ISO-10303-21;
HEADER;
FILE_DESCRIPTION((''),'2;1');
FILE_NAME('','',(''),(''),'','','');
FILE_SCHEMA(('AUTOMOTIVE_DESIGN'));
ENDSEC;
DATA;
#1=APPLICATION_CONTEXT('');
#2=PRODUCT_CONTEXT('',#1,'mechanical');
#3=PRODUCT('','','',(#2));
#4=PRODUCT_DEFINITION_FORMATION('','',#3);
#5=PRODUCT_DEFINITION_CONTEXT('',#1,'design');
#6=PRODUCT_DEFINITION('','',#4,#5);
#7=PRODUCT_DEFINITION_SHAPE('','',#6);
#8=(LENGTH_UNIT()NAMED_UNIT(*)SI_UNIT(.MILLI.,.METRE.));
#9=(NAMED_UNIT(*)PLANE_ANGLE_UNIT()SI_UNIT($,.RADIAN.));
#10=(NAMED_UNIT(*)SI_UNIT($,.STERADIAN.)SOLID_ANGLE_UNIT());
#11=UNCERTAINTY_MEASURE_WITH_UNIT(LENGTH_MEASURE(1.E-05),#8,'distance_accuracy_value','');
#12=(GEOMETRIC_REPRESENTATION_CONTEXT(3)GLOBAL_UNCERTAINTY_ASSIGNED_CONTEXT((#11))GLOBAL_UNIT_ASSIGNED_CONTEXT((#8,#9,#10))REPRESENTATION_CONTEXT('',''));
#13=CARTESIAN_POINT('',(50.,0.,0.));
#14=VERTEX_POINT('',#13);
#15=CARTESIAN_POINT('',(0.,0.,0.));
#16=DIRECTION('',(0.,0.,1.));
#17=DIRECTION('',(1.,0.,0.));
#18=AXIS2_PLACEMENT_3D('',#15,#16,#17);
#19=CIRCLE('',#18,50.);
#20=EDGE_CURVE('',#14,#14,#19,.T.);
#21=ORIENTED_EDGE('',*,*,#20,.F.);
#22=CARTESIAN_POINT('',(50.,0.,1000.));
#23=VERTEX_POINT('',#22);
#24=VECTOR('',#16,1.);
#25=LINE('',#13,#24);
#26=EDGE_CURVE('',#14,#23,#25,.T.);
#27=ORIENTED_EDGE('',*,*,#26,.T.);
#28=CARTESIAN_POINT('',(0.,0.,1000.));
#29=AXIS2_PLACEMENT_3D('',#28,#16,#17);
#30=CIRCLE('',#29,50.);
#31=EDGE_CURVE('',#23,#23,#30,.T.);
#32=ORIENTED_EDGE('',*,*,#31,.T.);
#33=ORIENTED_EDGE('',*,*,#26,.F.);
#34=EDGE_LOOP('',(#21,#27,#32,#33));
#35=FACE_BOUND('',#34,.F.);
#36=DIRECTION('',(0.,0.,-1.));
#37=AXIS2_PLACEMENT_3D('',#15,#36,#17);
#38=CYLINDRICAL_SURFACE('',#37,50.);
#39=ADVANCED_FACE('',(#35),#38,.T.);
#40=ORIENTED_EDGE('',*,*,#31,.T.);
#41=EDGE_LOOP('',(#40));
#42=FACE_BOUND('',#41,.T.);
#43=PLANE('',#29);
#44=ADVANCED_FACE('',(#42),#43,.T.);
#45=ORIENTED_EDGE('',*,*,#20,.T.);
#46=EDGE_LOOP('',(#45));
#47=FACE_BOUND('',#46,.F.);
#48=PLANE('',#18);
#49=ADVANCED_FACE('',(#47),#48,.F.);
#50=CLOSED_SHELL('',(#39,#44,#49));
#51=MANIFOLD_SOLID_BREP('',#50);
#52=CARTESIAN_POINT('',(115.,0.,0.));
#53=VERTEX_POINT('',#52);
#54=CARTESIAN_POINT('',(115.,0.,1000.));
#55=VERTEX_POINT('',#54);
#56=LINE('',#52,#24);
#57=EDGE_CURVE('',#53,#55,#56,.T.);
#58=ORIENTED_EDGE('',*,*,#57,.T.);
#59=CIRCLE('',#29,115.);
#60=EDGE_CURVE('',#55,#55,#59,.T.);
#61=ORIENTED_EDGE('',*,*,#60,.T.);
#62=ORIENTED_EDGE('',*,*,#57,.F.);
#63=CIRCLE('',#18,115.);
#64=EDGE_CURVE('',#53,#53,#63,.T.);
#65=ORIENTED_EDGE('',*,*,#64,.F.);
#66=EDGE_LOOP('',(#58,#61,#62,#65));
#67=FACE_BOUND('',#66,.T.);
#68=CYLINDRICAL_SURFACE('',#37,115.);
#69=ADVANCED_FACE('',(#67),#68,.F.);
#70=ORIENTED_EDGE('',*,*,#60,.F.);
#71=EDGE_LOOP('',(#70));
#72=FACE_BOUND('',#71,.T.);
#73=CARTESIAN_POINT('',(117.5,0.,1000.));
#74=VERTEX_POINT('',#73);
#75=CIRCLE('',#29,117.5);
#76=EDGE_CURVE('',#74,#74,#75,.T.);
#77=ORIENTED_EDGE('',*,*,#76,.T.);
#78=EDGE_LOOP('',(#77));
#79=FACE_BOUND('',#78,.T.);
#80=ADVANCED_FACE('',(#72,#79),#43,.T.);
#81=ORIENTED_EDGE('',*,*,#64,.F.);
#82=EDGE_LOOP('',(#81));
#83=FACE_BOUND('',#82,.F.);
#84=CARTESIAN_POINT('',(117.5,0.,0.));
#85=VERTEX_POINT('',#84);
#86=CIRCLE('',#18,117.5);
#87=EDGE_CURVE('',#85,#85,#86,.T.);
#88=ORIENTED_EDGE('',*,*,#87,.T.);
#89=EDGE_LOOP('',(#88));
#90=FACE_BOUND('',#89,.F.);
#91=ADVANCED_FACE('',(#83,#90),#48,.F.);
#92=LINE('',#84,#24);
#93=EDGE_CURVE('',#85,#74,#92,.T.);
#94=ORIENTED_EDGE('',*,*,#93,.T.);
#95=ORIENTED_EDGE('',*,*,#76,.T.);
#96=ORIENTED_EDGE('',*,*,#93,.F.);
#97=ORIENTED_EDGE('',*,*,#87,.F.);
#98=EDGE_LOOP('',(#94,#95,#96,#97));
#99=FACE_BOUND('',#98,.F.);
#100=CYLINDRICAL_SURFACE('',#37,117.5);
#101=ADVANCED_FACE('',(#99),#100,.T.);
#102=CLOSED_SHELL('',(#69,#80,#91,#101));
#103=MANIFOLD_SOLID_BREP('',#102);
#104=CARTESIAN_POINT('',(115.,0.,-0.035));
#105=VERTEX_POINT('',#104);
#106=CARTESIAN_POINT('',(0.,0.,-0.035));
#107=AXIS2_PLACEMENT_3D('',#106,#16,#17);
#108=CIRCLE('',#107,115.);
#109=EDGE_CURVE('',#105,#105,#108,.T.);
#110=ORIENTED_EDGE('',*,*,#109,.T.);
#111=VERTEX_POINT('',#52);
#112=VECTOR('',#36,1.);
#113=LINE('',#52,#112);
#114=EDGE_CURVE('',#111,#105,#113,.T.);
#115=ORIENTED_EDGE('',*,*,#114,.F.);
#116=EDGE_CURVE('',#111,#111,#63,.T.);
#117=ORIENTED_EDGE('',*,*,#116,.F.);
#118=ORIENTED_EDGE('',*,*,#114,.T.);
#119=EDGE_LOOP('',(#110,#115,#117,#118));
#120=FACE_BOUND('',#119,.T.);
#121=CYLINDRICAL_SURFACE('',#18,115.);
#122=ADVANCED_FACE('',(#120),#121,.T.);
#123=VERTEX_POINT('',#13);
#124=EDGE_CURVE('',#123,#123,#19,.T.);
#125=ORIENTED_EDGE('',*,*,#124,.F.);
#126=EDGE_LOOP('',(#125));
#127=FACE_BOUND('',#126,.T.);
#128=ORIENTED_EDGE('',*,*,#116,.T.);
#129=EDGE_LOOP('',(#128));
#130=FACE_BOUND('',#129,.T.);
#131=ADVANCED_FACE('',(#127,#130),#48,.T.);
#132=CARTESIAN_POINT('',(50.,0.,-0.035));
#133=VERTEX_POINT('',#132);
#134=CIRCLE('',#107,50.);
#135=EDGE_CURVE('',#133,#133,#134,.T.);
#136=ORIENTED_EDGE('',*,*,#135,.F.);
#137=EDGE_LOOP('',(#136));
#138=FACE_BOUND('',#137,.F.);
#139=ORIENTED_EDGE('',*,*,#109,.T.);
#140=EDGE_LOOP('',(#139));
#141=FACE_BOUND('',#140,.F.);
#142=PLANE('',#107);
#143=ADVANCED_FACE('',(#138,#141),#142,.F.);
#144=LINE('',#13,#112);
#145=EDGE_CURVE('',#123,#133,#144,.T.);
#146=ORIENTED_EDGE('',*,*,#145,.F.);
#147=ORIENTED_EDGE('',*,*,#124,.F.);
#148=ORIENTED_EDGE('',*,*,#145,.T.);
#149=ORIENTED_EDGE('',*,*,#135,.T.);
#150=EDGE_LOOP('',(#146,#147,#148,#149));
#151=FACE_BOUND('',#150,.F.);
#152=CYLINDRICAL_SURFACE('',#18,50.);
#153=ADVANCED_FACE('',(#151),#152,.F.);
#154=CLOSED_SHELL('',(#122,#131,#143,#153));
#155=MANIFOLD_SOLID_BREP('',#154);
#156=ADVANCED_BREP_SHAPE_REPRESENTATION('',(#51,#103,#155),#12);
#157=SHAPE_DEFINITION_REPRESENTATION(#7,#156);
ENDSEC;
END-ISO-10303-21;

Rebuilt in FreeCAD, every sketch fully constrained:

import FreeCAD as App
import Part
import Sketcher
from FreeCAD import Vector

doc = App.newDocument("Part")
params = doc.addObject("Spreadsheet::Sheet", "Params")
for row, (alias, value) in enumerate([
    ("sketch1_diameter", "235 mm"),
    ("sketch1_diameter2", "230 mm"),
    ("pad1_length", "1000 mm"),
    ("sketch2_diameter", "100 mm"),
    ("pad2_length", "1000 mm"),
    ("sketch3_diameter", "230 mm"),
    ("sketch3_diameter2", "100 mm"),
    ("pad3_length", "0.035 mm"),
], start=1):
    params.set(f"A{row}", alias)
    params.set(f"B{row}", "=" + value)
    params.setAlias(f"B{row}", alias)

body = doc.addObject("PartDesign::Body", "Body")

sketch1 = doc.addObject("Sketcher::SketchObject", "Sketch")
body.addObject(sketch1)
sketch1.AttachmentSupport = (doc.XY_Plane, [""])
sketch1.MapMode = "FlatFace"
sketch1.addGeometry([
    Part.Circle(Vector(0, 0, 0), Vector(0, 0, 1), 118),
    Part.Circle(Vector(0, 0, 0), Vector(0, 0, 1), 115),
], False)
sketch1.addConstraint([
    Sketcher.Constraint("Coincident", 0, 3, -1, 1),
    Sketcher.Constraint("Coincident", 1, 3, -1, 1),
    Sketcher.Constraint("Diameter", 0, 235.0),
    Sketcher.Constraint("Diameter", 1, 230.0),
])
sketch1.setExpression("Constraints[2]", "Params.sketch1_diameter")
sketch1.setExpression("Constraints[3]", "Params.sketch1_diameter2")
pad1 = doc.addObject("PartDesign::Pad", "Pad")
body.addObject(pad1)
pad1.Profile = sketch1
pad1.setExpression("Length", "Params.pad1_length")
body2 = doc.addObject("PartDesign::Body", "Body001")

sketch2 = doc.addObject("Sketcher::SketchObject", "Sketch001")
body2.addObject(sketch2)
sketch2.AttachmentSupport = (doc.getObject("XY_Plane001"), [""])
sketch2.MapMode = "FlatFace"
sketch2.addGeometry(Part.Circle(Vector(0, 0, 0), Vector(0, 0, 1), 50), False)
sketch2.addConstraint([
    Sketcher.Constraint("Coincident", 0, 3, -1, 1),
    Sketcher.Constraint("Diameter", 0, 100.0),
])
sketch2.setExpression("Constraints[1]", "Params.sketch2_diameter")
pad2 = doc.addObject("PartDesign::Pad", "Pad001")
body2.addObject(pad2)
pad2.Profile = sketch2
pad2.setExpression("Length", "Params.pad2_length")
body3 = doc.addObject("PartDesign::Body", "Body002")

sketch3 = doc.addObject("Sketcher::SketchObject", "Sketch002")
body3.addObject(sketch3)
sketch3.AttachmentSupport = (doc.getObject("XY_Plane002"), [""])
sketch3.MapMode = "FlatFace"
sketch3.addGeometry([
    Part.Circle(Vector(0, 0, 0), Vector(0, 0, 1), 115),
    Part.Circle(Vector(0, 0, 0), Vector(0, 0, 1), 50),
], False)
sketch3.addConstraint([
    Sketcher.Constraint("Coincident", 0, 3, -1, 1),
    Sketcher.Constraint("Coincident", 1, 3, -1, 1),
    Sketcher.Constraint("Diameter", 0, 230.0),
    Sketcher.Constraint("Diameter", 1, 100.0),
])
sketch3.setExpression("Constraints[2]", "Params.sketch3_diameter")
sketch3.setExpression("Constraints[3]", "Params.sketch3_diameter2")
pad3 = doc.addObject("PartDesign::Pad", "Pad002")
body3.addObject(pad3)
pad3.Profile = sketch3
pad3.setExpression("Length", "Params.pad3_length")
pad3.Reversed = True

doc.recompute()
